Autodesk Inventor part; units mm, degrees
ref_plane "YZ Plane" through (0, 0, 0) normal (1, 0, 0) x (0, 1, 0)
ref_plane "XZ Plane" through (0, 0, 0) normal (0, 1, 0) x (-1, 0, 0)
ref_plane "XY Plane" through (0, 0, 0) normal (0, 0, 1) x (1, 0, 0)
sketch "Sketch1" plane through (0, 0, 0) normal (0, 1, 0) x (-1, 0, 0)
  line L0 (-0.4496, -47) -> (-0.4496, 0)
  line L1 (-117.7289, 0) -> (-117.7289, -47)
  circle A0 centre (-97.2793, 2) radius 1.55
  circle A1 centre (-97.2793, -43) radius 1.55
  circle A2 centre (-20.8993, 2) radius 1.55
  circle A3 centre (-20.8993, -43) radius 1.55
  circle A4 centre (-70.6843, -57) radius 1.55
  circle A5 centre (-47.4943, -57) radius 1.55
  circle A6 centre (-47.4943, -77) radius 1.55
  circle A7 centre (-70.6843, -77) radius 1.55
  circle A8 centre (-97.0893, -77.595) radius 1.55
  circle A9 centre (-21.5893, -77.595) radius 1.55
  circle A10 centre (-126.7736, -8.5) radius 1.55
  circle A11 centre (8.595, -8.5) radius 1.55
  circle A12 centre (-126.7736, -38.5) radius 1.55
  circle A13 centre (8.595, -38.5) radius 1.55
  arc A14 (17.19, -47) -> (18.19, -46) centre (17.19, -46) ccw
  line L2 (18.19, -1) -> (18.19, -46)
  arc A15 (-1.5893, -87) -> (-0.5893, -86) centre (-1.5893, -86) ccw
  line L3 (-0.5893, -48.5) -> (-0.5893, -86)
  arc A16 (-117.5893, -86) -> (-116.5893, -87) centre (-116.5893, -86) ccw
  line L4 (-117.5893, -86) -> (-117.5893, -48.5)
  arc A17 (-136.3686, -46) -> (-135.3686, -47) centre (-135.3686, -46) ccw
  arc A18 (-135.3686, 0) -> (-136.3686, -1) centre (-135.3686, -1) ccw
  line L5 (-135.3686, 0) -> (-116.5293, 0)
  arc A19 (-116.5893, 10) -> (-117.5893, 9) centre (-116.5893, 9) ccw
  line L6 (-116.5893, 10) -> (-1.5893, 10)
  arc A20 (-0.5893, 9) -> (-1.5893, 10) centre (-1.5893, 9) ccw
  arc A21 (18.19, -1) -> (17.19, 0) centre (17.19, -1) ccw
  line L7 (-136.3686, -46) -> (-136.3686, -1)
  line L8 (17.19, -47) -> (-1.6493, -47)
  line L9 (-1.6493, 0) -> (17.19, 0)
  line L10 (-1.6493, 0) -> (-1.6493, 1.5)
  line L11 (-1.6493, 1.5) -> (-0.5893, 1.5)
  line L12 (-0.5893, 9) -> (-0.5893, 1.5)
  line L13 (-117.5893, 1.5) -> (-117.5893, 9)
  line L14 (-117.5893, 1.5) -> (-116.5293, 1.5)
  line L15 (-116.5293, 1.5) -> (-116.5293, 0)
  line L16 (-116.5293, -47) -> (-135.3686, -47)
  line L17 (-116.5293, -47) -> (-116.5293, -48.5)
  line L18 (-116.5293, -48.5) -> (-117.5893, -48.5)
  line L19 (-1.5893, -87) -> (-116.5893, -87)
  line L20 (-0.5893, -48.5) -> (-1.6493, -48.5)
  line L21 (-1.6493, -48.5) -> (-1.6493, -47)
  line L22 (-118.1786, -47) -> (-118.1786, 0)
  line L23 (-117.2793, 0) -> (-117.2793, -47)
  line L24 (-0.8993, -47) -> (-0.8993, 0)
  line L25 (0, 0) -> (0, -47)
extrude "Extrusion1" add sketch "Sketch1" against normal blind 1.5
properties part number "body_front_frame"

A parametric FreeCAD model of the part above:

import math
import FreeCAD as App
import Part
import Sketcher

doc = App.newDocument("Part")
body = doc.addObject("PartDesign::Body", "Body")

sketch1 = body.newObject("Sketcher::SketchObject", "Sketch")
sketch1.AttachmentSupport = (doc.getObject("XZ_Plane"), [""])
sketch1.MapMode = "FlatFace"
sketch1.addGeometry([
    Part.ArcOfCircle(Part.Circle(App.Vector(-17.2, -46, 0), App.Vector(0, 0, 1), 1), math.radians(180), math.radians(270)),
    Part.LineSegment(App.Vector(-18.2, -46, 0), App.Vector(-18.2, -1, 0)),
    Part.ArcOfCircle(Part.Circle(App.Vector(-17.2, -1, 0), App.Vector(0, 0, 1), 1), math.radians(90), math.radians(180)),
    Part.LineSegment(App.Vector(-17.2, 0, 0), App.Vector(1.6, 0, 0)),
    Part.LineSegment(App.Vector(1.6, 0, 0), App.Vector(1.6, 1.5, 0)),
    Part.LineSegment(App.Vector(1.6, 1.5, 0), App.Vector(0.6, 1.5, 0)),
    Part.LineSegment(App.Vector(0.6, 1.5, 0), App.Vector(0.6, 9, 0)),
    Part.ArcOfCircle(Part.Circle(App.Vector(1.6, 9, 0), App.Vector(0, 0, 1), 1), math.radians(90), math.radians(180)),
    Part.LineSegment(App.Vector(1.6, 10, 0), App.Vector(116.6, 10, 0)),
    Part.ArcOfCircle(Part.Circle(App.Vector(116.6, 9, 0), App.Vector(0, 0, 1), 1), math.radians(0), math.radians(90)),
    Part.LineSegment(App.Vector(117.6, 9, 0), App.Vector(117.6, 1.5, 0)),
    Part.LineSegment(App.Vector(117.6, 1.5, 0), App.Vector(116.5, 1.5, 0)),
    Part.LineSegment(App.Vector(116.5, 1.5, 0), App.Vector(116.5, 0, 0)),
    Part.LineSegment(App.Vector(116.5, 0, 0), App.Vector(135.4, 0, 0)),
    Part.ArcOfCircle(Part.Circle(App.Vector(135.4, -1, 0), App.Vector(0, 0, 1), 1), math.radians(0), math.radians(90)),
    Part.LineSegment(App.Vector(136.4, -1, 0), App.Vector(136.4, -46, 0)),
    Part.ArcOfCircle(Part.Circle(App.Vector(135.4, -46, 0), App.Vector(0, 0, 1), 1), math.radians(-90), math.radians(0)),
    Part.LineSegment(App.Vector(135.4, -47, 0), App.Vector(116.5, -47, 0)),
    Part.LineSegment(App.Vector(116.5, -47, 0), App.Vector(116.5, -48.5, 0)),
    Part.LineSegment(App.Vector(116.5, -48.5, 0), App.Vector(117.6, -48.5, 0)),
    Part.LineSegment(App.Vector(117.6, -48.5, 0), App.Vector(117.6, -86, 0)),
    Part.ArcOfCircle(Part.Circle(App.Vector(116.6, -86, 0), App.Vector(0, 0, 1), 1), math.radians(-90), math.radians(0)),
    Part.LineSegment(App.Vector(116.6, -87, 0), App.Vector(1.6, -87, 0)),
    Part.ArcOfCircle(Part.Circle(App.Vector(1.6, -86, 0), App.Vector(0, 0, 1), 1), math.radians(180), math.radians(270)),
    Part.LineSegment(App.Vector(0.6, -86, 0), App.Vector(0.6, -48.5, 0)),
    Part.LineSegment(App.Vector(0.6, -48.5, 0), App.Vector(1.6, -48.5, 0)),
    Part.LineSegment(App.Vector(1.6, -48.5, 0), App.Vector(1.6, -47, 0)),
    Part.LineSegment(App.Vector(1.6, -47, 0), App.Vector(-17.2, -47, 0)),
    Part.Circle(App.Vector(20.9, 2, 0), App.Vector(0, 0, 1), 1.6),
    Part.Circle(App.Vector(97.1, -77.6, 0), App.Vector(0, 0, 1), 1.6),
    Part.Circle(App.Vector(70.7, -77, 0), App.Vector(0, 0, 1), 1.6),
    Part.Circle(App.Vector(70.7, -57, 0), App.Vector(0, 0, 1), 1.6),
    Part.Circle(App.Vector(97.3, -43, 0), App.Vector(0, 0, 1), 1.6),
    Part.Circle(App.Vector(47.5, -77, 0), App.Vector(0, 0, 1), 1.6),
    Part.Circle(App.Vector(21.6, -77.6, 0), App.Vector(0, 0, 1), 1.6),
    Part.Circle(App.Vector(47.5, -57, 0), App.Vector(0, 0, 1), 1.6),
    Part.Circle(App.Vector(20.9, -43, 0), App.Vector(0, 0, 1), 1.6),
    Part.Circle(App.Vector(97.3, 2, 0), App.Vector(0, 0, 1), 1.6),
    Part.Circle(App.Vector(-8.6, -8.5, 0), App.Vector(0, 0, 1), 1.6),
    Part.Circle(App.Vector(-8.6, -38.5, 0), App.Vector(0, 0, 1), 1.6),
    Part.Circle(App.Vector(126.8, -8.5, 0), App.Vector(0, 0, 1), 1.6),
    Part.Circle(App.Vector(126.8, -38.5, 0), App.Vector(0, 0, 1), 1.6),
], False)
sketch1.addConstraint([
    Sketcher.Constraint("Tangent", 0, 1, 1, 1),
    Sketcher.Constraint("Tangent", 1, 2, 2, 2),
    Sketcher.Constraint("Tangent", 2, 1, 3, 1),
    Sketcher.Constraint("Coincident", 3, 2, 4, 1),
    Sketcher.Constraint("Coincident", 4, 2, 5, 1),
    Sketcher.Constraint("Coincident", 5, 2, 6, 1),
    Sketcher.Constraint("Tangent", 6, 2, 7, 2),
    Sketcher.Constraint("Tangent", 7, 1, 8, 1),
    Sketcher.Constraint("Tangent", 8, 2, 9, 2),
    Sketcher.Constraint("Tangent", 9, 1, 10, 1),
    Sketcher.Constraint("Coincident", 10, 2, 11, 1),
    Sketcher.Constraint("Coincident", 11, 2, 12, 1),
    Sketcher.Constraint("Coincident", 12, 2, 13, 1),
    Sketcher.Constraint("Tangent", 13, 2, 14, 2),
    Sketcher.Constraint("Tangent", 14, 1, 15, 1),
    Sketcher.Constraint("Tangent", 15, 2, 16, 2),
    Sketcher.Constraint("Tangent", 16, 1, 17, 1),
    Sketcher.Constraint("Coincident", 17, 2, 18, 1),
    Sketcher.Constraint("Coincident", 18, 2, 19, 1),
    Sketcher.Constraint("Coincident", 19, 2, 20, 1),
    Sketcher.Constraint("Tangent", 20, 2, 21, 2),
    Sketcher.Constraint("Tangent", 21, 1, 22, 1),
    Sketcher.Constraint("Tangent", 22, 2, 23, 2),
    Sketcher.Constraint("Tangent", 23, 1, 24, 1),
    Sketcher.Constraint("Coincident", 24, 2, 25, 1),
    Sketcher.Constraint("Coincident", 25, 2, 26, 1),
    Sketcher.Constraint("Coincident", 26, 2, 27, 1),
    Sketcher.Constraint("Tangent", 27, 2, 0, 2),
    Sketcher.Constraint("Vertical", 1),
    Sketcher.Constraint("Horizontal", 3),
    Sketcher.Constraint("Vertical", 4),
    Sketcher.Constraint("Horizontal", 5),
    Sketcher.Constraint("Vertical", 6),
    Sketcher.Constraint("Horizontal", 8),
    Sketcher.Constraint("Vertical", 10),
    Sketcher.Constraint("Horizontal", 11),
    Sketcher.Constraint("Vertical", 12),
    Sketcher.Constraint("Horizontal", 13),
    Sketcher.Constraint("Vertical", 15),
    Sketcher.Constraint("Horizontal", 17),
    Sketcher.Constraint("Vertical", 18),
    Sketcher.Constraint("Horizontal", 19),
    Sketcher.Constraint("Vertical", 20),
    Sketcher.Constraint("Horizontal", 22),
    Sketcher.Constraint("Vertical", 24),
    Sketcher.Constraint("Horizontal", 25),
    Sketcher.Constraint("Vertical", 26),
    Sketcher.Constraint("Horizontal", 27),
    Sketcher.Constraint("Equal", 0, 2),
    Sketcher.Constraint("Equal", 2, 7),
    Sketcher.Constraint("Equal", 7, 9),
    Sketcher.Constraint("Equal", 9, 14),
    Sketcher.Constraint("Equal", 14, 16),
    Sketcher.Constraint("Equal", 16, 21),
    Sketcher.Constraint("Equal", 21, 23),
    Sketcher.Constraint("Equal", 28, 29),
    Sketcher.Constraint("Equal", 29, 30),
    Sketcher.Constraint("Equal", 30, 31),
    Sketcher.Constraint("Equal", 31, 32),
    Sketcher.Constraint("Equal", 32, 33),
    Sketcher.Constraint("Equal", 33, 34),
    Sketcher.Constraint("Equal", 34, 35),
    Sketcher.Constraint("Equal", 35, 36),
    Sketcher.Constraint("Equal", 36, 37),
    Sketcher.Constraint("Equal", 37, 38),
    Sketcher.Constraint("Equal", 38, 39),
    Sketcher.Constraint("Equal", 39, 40),
    Sketcher.Constraint("Equal", 40, 41),
    Sketcher.Constraint("PointOnObject", 2, 1, -1),
    Sketcher.Constraint("PointOnObject", 12, 2, -1),
    Sketcher.Constraint("Horizontal", 0, 3, 16, 3),
    Sketcher.Constraint("Horizontal", 30, 3, 33, 3),
    Sketcher.Constraint("Horizontal", 29, 3, 34, 3),
    Sketcher.Constraint("Horizontal", 31, 3, 35, 3),
    Sketcher.Constraint("Horizontal", 32, 3, 36, 3),
    Sketcher.Constraint("Horizontal", 28, 3, 37, 3),
    Sketcher.Constraint("Horizontal", 38, 3, 40, 3),
    Sketcher.Constraint("Horizontal", 39, 3, 41, 3),
    Sketcher.Constraint("Horizontal", 5, 2, 10, 2),
    Sketcher.Constraint("Horizontal", 19, 2, 24, 2),
    Sketcher.Constraint("Vertical", 9, 3, 21, 3),
    Sketcher.Constraint("Vertical", 7, 3, 23, 3),
    Sketcher.Constraint("Vertical", 30, 3, 31, 3),
    Sketcher.Constraint("Vertical", 33, 3, 35, 3),
    Sketcher.Constraint("Vertical", 28, 3, 36, 3),
    Sketcher.Constraint("Vertical", 32, 3, 37, 3),
    Sketcher.Constraint("Vertical", 38, 3, 39, 3),
    Sketcher.Constraint("Vertical", 40, 3, 41, 3),
    Sketcher.Constraint("Vertical", 12, 2, 17, 2),
    Sketcher.Constraint("Vertical", 4, 2, 25, 2),
    Sketcher.Constraint("Equal", 5, 11),
    Sketcher.Constraint("Equal", 3, 13),
    Sketcher.Constraint("Equal", 12, 18),
    Sketcher.Constraint("Radius", 0, 1.0),
    Sketcher.Constraint("Diameter", 28, 3.1),
    Sketcher.Constraint("DistanceX", 8, 1, 8, 2, 115.0),
    Sketcher.Constraint("DistanceY", 1, 1, 1, 2, 45.0),
    Sketcher.Constraint("DistanceY", 4, 1, 4, 2, 1.5),
    Sketcher.Constraint("DistanceY", 6, 1, 6, 2, 7.5),
    Sketcher.Constraint("DistanceY", 20, 2, 20, 1, 37.5),
    Sketcher.Constraint("DistanceY", -1, 1, 28, 3, 2.0),
    Sketcher.Constraint("DistanceY", 30, 3, -1, 1, 77.0),
    Sketcher.Constraint("DistanceY", 31, 3, -1, 1, 57.0),
    Sketcher.Constraint("DistanceY", 32, 3, -1, 1, 43.0),
    Sketcher.Constraint("DistanceX", 23, 3, 34, 3, 20.0),
    Sketcher.Constraint("DistanceY", 39, 3, 38, 3, 30.0),
    Sketcher.Constraint("DistanceY", 38, 3, 4, 2, 10.0),
    Sketcher.Constraint("DistanceX", 5, 2, 5, 1, 1.06),
    Sketcher.Constraint("DistanceX", 29, 3, 21, 3, 19.5),
    Sketcher.Constraint("DistanceX", 0, 3, -1, 1, 17.19),
    Sketcher.Constraint("DistanceX", 7, 3, 28, 3, 19.31),
    Sketcher.Constraint("DistanceX", 29, 3, 32, 3, 0.19),
    Sketcher.Constraint("DistanceX", 33, 3, 30, 3, 23.19),
    Sketcher.Constraint("DistanceX", 3, 1, 3, 2, 18.8393),
    Sketcher.Constraint("DistanceY", 29, 3, -1, 1, 77.595),
    Sketcher.Constraint("DistanceX", 38, 3, -1, 1, 8.595),
    Sketcher.Constraint("DistanceX", 30, 3, 29, 3, 26.405),
    Sketcher.Constraint("DistanceX", 40, 3, 14, 3, 8.595),
])
pad1 = body.newObject("PartDesign::Pad", "Pad")
pad1.Profile = sketch1
pad1.Length = 1.5

doc.recompute()
